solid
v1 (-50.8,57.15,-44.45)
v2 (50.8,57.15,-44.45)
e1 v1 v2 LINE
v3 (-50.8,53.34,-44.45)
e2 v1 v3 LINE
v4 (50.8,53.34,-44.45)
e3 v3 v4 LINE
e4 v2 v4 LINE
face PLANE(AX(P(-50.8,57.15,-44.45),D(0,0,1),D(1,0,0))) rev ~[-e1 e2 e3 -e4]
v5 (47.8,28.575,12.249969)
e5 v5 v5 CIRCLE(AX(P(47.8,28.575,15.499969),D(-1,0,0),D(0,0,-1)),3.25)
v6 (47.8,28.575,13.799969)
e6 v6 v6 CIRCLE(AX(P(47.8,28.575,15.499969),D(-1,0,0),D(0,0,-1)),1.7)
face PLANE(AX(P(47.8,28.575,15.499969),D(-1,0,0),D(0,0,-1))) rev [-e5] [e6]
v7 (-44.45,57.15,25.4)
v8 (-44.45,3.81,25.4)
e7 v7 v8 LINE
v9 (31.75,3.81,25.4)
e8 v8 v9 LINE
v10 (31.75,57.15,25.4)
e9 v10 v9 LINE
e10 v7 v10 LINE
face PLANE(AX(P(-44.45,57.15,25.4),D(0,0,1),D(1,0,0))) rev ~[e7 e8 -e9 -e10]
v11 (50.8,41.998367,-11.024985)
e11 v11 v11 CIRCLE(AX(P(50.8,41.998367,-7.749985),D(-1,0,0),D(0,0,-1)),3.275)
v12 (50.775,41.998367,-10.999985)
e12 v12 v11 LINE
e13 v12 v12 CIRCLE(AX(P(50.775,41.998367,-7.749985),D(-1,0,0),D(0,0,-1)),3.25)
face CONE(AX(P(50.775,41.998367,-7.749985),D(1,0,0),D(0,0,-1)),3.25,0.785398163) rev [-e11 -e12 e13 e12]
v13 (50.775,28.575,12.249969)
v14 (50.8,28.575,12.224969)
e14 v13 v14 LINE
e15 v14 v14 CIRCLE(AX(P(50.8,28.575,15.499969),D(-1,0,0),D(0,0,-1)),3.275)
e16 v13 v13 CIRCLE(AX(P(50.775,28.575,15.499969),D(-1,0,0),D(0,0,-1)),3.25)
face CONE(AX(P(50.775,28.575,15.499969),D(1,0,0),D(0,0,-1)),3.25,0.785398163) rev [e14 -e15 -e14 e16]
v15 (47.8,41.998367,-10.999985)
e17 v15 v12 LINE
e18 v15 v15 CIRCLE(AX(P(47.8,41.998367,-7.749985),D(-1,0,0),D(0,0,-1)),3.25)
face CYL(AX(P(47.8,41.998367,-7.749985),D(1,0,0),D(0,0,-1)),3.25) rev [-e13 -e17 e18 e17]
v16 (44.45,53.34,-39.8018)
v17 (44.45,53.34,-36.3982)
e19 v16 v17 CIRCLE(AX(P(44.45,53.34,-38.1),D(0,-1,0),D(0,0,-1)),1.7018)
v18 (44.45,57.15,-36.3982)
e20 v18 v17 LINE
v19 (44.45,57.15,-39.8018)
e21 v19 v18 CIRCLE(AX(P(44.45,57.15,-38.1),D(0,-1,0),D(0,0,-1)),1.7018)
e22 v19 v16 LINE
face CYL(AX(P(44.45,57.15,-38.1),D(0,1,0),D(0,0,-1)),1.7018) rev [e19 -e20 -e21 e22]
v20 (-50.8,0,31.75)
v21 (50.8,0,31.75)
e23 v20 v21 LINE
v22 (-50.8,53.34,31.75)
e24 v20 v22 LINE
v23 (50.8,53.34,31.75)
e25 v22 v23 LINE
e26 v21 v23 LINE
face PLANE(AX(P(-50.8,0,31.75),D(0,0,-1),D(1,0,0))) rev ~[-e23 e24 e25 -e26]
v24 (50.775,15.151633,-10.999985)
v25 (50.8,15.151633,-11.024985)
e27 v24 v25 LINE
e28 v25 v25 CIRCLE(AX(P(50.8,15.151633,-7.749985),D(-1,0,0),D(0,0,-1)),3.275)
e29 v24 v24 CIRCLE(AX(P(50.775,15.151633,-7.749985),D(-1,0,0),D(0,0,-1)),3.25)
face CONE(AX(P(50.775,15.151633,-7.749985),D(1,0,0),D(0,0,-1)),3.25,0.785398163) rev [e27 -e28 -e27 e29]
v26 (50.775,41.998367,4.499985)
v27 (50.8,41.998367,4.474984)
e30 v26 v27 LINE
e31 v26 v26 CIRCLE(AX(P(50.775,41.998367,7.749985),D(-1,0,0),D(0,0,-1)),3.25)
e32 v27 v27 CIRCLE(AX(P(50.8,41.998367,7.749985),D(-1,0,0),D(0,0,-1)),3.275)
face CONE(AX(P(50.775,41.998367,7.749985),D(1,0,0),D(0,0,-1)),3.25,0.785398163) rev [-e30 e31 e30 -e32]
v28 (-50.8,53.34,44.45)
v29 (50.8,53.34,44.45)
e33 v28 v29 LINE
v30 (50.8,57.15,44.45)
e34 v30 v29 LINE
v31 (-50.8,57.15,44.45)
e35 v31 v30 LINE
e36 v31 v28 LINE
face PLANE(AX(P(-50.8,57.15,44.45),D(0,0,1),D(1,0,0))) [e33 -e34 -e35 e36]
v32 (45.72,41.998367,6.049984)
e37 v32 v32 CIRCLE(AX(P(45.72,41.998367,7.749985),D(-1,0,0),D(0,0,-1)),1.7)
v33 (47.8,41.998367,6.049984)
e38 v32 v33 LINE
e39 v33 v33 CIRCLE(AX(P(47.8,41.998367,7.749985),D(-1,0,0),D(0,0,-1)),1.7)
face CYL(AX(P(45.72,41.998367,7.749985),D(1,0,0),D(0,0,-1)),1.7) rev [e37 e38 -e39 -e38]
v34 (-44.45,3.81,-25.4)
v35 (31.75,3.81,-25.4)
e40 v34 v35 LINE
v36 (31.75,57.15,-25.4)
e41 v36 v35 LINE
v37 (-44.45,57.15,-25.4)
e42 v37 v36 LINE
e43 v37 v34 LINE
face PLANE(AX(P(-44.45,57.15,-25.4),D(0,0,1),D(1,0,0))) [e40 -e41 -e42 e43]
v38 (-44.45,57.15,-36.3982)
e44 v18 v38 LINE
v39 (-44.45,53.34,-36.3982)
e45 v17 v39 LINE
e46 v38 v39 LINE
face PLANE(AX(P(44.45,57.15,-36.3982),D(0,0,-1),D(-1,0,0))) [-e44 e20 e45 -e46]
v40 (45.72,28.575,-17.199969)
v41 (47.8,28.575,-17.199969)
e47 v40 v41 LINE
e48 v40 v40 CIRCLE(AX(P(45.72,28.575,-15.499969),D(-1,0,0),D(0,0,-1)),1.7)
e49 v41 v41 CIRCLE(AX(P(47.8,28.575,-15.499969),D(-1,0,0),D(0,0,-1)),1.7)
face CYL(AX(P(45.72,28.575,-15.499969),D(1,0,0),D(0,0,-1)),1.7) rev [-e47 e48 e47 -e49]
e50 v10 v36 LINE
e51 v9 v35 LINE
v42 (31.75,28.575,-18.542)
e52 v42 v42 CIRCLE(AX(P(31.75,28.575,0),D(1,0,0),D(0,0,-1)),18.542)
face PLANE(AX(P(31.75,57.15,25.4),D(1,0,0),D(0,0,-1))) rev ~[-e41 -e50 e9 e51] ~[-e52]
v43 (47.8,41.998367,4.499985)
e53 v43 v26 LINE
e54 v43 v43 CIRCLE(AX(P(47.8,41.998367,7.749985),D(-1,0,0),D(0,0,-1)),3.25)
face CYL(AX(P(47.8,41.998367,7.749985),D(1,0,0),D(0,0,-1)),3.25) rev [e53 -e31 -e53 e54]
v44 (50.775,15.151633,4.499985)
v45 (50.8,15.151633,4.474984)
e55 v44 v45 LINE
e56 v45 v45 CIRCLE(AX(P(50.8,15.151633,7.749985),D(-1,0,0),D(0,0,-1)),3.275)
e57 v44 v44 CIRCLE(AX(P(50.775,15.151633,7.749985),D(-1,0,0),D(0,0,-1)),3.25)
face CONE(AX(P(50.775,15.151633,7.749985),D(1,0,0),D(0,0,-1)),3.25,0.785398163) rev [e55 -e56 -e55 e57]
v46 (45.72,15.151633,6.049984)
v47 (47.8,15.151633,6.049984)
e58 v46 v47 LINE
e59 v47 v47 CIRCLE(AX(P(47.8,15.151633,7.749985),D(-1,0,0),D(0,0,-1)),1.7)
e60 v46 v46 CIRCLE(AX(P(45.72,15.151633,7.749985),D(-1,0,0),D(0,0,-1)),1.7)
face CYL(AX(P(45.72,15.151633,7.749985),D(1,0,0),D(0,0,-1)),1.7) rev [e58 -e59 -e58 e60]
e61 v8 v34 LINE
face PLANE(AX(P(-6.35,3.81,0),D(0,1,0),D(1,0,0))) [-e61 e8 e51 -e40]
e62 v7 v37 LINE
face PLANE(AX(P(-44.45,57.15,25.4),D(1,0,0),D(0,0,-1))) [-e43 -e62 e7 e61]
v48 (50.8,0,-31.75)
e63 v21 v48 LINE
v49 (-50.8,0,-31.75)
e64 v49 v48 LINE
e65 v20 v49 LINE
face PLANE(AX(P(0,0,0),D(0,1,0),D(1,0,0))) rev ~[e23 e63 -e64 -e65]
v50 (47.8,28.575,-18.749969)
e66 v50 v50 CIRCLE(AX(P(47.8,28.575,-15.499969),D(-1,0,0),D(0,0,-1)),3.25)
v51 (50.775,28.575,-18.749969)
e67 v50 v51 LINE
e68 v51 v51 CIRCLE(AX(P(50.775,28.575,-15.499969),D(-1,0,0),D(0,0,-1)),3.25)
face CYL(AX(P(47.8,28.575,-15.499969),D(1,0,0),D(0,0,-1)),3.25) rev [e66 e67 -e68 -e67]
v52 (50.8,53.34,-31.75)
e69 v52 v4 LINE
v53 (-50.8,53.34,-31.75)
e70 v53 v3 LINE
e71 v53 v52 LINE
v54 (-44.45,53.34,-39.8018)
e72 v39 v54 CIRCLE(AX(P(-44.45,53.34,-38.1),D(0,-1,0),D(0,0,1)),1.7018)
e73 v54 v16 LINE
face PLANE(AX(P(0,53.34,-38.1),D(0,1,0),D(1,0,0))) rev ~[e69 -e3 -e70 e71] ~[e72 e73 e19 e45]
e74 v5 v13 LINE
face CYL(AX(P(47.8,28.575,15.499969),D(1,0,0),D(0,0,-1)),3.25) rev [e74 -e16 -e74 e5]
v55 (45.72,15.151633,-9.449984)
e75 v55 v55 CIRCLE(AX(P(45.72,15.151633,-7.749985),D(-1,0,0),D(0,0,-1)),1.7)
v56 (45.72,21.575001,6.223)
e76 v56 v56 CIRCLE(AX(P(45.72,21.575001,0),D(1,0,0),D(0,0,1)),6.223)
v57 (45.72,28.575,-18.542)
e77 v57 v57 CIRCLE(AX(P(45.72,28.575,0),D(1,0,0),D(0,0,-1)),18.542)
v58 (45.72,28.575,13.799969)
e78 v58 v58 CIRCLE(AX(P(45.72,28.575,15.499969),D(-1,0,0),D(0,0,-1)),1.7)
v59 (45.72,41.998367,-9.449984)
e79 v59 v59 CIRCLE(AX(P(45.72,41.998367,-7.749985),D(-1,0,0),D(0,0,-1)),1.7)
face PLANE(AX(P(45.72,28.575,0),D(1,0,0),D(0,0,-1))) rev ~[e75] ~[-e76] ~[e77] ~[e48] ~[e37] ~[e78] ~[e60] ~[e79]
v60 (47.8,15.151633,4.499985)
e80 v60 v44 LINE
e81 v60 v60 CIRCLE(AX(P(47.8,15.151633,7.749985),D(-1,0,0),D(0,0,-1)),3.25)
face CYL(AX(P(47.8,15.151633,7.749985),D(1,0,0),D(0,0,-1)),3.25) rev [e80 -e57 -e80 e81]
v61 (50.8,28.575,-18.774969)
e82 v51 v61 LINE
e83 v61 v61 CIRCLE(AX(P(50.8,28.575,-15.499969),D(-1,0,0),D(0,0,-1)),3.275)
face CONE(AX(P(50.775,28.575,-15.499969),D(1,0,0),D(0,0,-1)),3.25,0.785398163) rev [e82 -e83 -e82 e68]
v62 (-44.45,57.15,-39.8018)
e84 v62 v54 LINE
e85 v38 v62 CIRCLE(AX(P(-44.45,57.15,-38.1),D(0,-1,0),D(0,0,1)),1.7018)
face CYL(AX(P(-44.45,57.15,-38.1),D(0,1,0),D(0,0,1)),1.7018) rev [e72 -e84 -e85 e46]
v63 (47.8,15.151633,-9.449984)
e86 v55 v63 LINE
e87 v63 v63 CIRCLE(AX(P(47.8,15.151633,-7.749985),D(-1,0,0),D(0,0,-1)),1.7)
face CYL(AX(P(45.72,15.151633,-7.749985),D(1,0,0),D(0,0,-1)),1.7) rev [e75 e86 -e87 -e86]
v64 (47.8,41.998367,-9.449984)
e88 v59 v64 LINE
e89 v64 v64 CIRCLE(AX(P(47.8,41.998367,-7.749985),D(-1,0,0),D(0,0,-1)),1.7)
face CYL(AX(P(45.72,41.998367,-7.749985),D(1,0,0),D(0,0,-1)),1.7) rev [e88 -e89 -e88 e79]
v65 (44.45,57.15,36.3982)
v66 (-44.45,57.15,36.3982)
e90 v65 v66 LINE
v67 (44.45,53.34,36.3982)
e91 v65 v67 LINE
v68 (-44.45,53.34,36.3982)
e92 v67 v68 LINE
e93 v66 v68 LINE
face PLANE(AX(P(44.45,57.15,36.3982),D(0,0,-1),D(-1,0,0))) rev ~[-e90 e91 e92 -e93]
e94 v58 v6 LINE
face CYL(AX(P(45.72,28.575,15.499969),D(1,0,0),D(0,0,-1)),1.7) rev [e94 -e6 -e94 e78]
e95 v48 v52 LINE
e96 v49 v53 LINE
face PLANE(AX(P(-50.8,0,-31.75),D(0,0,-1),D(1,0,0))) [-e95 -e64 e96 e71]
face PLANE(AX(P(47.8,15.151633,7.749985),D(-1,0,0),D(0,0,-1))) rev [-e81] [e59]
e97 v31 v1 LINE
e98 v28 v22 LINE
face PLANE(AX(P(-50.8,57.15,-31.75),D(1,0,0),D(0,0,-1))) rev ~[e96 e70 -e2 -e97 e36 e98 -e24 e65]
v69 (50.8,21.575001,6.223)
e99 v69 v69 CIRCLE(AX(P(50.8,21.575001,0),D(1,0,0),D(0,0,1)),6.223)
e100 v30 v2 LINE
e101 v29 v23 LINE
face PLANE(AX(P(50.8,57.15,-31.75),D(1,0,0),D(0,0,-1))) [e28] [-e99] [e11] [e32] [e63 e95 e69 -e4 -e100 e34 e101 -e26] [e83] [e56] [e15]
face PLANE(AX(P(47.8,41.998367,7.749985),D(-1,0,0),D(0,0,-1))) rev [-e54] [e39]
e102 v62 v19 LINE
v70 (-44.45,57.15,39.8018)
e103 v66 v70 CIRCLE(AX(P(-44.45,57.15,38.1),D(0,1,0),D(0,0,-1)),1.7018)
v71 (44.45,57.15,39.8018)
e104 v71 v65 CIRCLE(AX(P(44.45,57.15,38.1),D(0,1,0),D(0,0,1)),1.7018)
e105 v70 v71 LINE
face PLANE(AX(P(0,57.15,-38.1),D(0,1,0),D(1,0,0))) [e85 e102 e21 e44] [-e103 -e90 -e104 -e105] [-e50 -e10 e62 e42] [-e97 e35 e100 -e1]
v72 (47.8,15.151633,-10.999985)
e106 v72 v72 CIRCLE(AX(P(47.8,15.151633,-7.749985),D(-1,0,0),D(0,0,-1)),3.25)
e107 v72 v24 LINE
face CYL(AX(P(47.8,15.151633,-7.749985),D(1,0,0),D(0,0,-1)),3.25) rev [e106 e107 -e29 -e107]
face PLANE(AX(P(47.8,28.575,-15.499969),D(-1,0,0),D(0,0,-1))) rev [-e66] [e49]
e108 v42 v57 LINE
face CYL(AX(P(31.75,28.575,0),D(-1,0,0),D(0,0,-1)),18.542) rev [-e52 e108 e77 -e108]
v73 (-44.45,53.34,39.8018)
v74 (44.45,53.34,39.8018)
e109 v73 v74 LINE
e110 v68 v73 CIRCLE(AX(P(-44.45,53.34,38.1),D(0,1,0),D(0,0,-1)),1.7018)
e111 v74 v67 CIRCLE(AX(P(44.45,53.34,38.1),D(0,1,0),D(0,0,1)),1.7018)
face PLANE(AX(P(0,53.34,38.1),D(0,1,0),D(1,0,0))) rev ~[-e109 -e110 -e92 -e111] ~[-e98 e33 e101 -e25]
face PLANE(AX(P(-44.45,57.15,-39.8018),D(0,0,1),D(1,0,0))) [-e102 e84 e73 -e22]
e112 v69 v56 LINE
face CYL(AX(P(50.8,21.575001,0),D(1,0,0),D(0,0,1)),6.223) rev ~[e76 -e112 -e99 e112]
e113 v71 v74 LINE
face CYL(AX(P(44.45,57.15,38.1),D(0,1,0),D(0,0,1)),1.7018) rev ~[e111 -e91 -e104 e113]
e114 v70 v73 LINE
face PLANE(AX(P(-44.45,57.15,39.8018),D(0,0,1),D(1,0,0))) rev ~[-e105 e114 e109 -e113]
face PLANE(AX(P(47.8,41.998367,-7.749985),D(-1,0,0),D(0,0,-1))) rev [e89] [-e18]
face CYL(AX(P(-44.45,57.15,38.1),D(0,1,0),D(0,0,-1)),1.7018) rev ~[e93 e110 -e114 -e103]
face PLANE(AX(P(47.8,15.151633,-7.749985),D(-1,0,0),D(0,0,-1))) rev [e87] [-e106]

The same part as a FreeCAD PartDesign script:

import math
import FreeCAD as App
import Part
import Sketcher
from FreeCAD import Vector
Q = App.Units.Quantity

doc = App.newDocument("Part")
body = doc.addObject("PartDesign::Body", "Body")

sketch1 = body.newObject("Sketcher::SketchObject", "Sketch")
sketch1.AttachmentSupport = (doc.getObject("XZ_Plane"), [""])
sketch1.MapMode = "FlatFace"
sketch1.addGeometry([
    Part.LineSegment(Vector(-51, -32, 0), Vector(-51, 32, 0)),
    Part.LineSegment(Vector(-51, 32, 0), Vector(51, 32, 0)),
    Part.LineSegment(Vector(51, 32, 0), Vector(51, -32, 0)),
    Part.LineSegment(Vector(51, -32, 0), Vector(-51, -32, 0)),
], False)
sketch1.addConstraint([
    Sketcher.Constraint("Coincident", 0, 2, 1, 1),
    Sketcher.Constraint("Coincident", 1, 2, 2, 1),
    Sketcher.Constraint("Coincident", 2, 2, 3, 1),
    Sketcher.Constraint("Coincident", 3, 2, 0, 1),
    Sketcher.Constraint("Vertical", 0),
    Sketcher.Constraint("Horizontal", 1),
    Sketcher.Constraint("Vertical", 2),
    Sketcher.Constraint("Horizontal", 3),
    Sketcher.Constraint("Symmetric", 0, 2, 2, 2, -1, 1),
    Sketcher.Constraint("DistanceX", 1, 1, 1, 2, Q("4 in")),
    Sketcher.Constraint("DistanceY", 0, 1, 0, 2, Q("2.5 in")),
])
pad1 = body.newObject("PartDesign::Pad", "Pad")
pad1.Profile = sketch1
pad1.Length = Q("2.25 in")
pad1.Reversed = True

sketch2 = body.newObject("Sketcher::SketchObject", "Sketch001")
sketch2.AttachmentSupport = (doc.getObject("XZ_Plane"), [""])
sketch2.MapMode = "FlatFace"
sketch2.AttachmentOffset = App.Placement(Vector(0, 0, -41.998367), App.Rotation())
sketch2.addGeometry([
    Part.LineSegment(Vector(44.699, 7.75, 0), Vector(50.8, 7.75, 0)),
    Part.LineSegment(Vector(50.8, 7.75, 0), Vector(50.8, 4.475, 0)),
    Part.LineSegment(Vector(50.8, 4.475, 0), Vector(50.775, 4.5, 0)),
    Part.LineSegment(Vector(50.775, 4.5, 0), Vector(47.8, 4.5, 0)),
    Part.LineSegment(Vector(47.8, 4.5, 0), Vector(47.8, 6.05, 0)),
    Part.LineSegment(Vector(47.8, 6.05, 0), Vector(45.72, 6.05, 0)),
    Part.LineSegment(Vector(45.72, 6.05, 0), Vector(44.699, 7.75, 0)),
], False)
sketch2.addGeometry(Part.LineSegment(Vector(50.8, 7.75, 0), Vector(44.699, 7.75, 0)), True)
sketch2.addConstraint([
    Sketcher.Constraint("Coincident", 0, 2, 1, 1),
    Sketcher.Constraint("Coincident", 1, 2, 2, 1),
    Sketcher.Constraint("Coincident", 2, 2, 3, 1),
    Sketcher.Constraint("Coincident", 3, 2, 4, 1),
    Sketcher.Constraint("Coincident", 4, 2, 5, 1),
    Sketcher.Constraint("Coincident", 5, 2, 6, 1),
    Sketcher.Constraint("Coincident", 6, 2, 0, 1),
    Sketcher.Constraint("Horizontal", 0),
    Sketcher.Constraint("Vertical", 1),
    Sketcher.Constraint("Horizontal", 3),
    Sketcher.Constraint("Vertical", 4),
    Sketcher.Constraint("Horizontal", 5),
    Sketcher.Constraint("Horizontal", 7),
    Sketcher.Constraint("Coincident", 7, 1, 0, 2),
    Sketcher.Constraint("Equal", 0, 7),
    Sketcher.Constraint("DistanceX", -1, 1, 0, 2, Q("2 in")),
    Sketcher.Constraint("Angle", 2, Q("135 deg")),
    Sketcher.Constraint("Angle", 6, Q("121 deg")),
    Sketcher.Constraint("DistanceX", -1, 1, 5, 2, Q("1.8 in")),
    Sketcher.Constraint("DistanceX", 3, 2, 3, 1, 2.975),
    Sketcher.Constraint("DistanceX", 5, 2, 5, 1, 2.08),
    Sketcher.Constraint("DistanceY", 1, 2, 1, 1, 3.275),
    Sketcher.Constraint("DistanceY", 4, 1, 4, 2, 1.55),
    Sketcher.Constraint("DistanceY", -1, 1, 0, 2, 7.749985),
])
groove = body.newObject("PartDesign::Groove", "Groove")
groove.Profile = sketch2
groove.ReferenceAxis = (sketch2, ["Axis0"])
groove.Angle = 360
doc.recompute()

datumline = body.newObject("PartDesign::Line", "DatumLine")
datumline.Placement = App.Placement(Vector(0, 0, 0), App.Rotation(Vector(0, 0, 1), Vector(0, -0.866025404, 0.5)))
linearpattern = body.newObject("PartDesign::LinearPattern", "LinearPattern")
linearpattern.Originals = [groove]
linearpattern.Direction = (datumline, [""])
linearpattern.Mode = "offset"
linearpattern.Offset = 15.499969
linearpattern.Occurrences = 2
body.Tip = linearpattern
doc.recompute()

linearpattern2 = body.newObject("PartDesign::LinearPattern", "LinearPattern001")
linearpattern2.Originals = [groove]
linearpattern2.Direction = (doc.getObject("Y_Axis"), [""])
linearpattern2.Mode = "offset"
linearpattern2.Offset = 26.846734
linearpattern2.Occurrences = 2
linearpattern2.Reversed = True
body.Tip = linearpattern2
doc.recompute()

datumline2 = body.newObject("PartDesign::Line", "DatumLine001")
datumline2.Placement = App.Placement(Vector(0, 0, 0), App.Rotation(Vector(0, 0, 1), Vector(0, -0.866025404, -0.5)))
linearpattern3 = body.newObject("PartDesign::LinearPattern", "LinearPattern002")
linearpattern3.Originals = [groove]
linearpattern3.Direction = (datumline2, [""])
linearpattern3.Mode = "offset"
linearpattern3.Offset = 30.999938
linearpattern3.Occurrences = 2
body.Tip = linearpattern3
doc.recompute()

datumline3 = body.newObject("PartDesign::Line", "DatumLine002")
datumline3.Placement = App.Placement(Vector(0, 0, 0), App.Rotation(Vector(0, 0, 1), Vector(0, -0.5, -0.866025404)))
linearpattern4 = body.newObject("PartDesign::LinearPattern", "LinearPattern003")
linearpattern4.Originals = [groove]
linearpattern4.Direction = (datumline3, [""])
linearpattern4.Mode = "offset"
linearpattern4.Offset = 26.846734
linearpattern4.Occurrences = 2
body.Tip = linearpattern4
doc.recompute()

linearpattern5 = body.newObject("PartDesign::LinearPattern", "LinearPattern004")
linearpattern5.Originals = [groove]
linearpattern5.Direction = (doc.getObject("Z_Axis"), [""])
linearpattern5.Mode = "offset"
linearpattern5.Offset = 15.499969
linearpattern5.Occurrences = 2
linearpattern5.Reversed = True
body.Tip = linearpattern5

sketch3 = body.newObject("Sketcher::SketchObject", "Sketch002")
sketch3.AttachmentSupport = (doc.getObject("YZ_Plane"), [""])
sketch3.MapMode = "FlatFace"
sketch3.AttachmentOffset = App.Placement(Vector(0, 0, 2 * 25.4), App.Rotation())
sketch3.addGeometry(Part.Circle(Vector(22, 0, 0), Vector(0, 0, 1), 6), False)
sketch3.addConstraint([
    Sketcher.Constraint("PointOnObject", 0, 3, -1),
    Sketcher.Constraint("Diameter", 0, Q("0.49 in")),
    Sketcher.Constraint("DistanceX", -1, 1, 0, 3, 21.575001),
])
pocket1 = body.newObject("PartDesign::Pocket", "Pocket")
pocket1.Profile = sketch3
pocket1.Length = Q("2 in")

sketch4 = body.newObject("Sketcher::SketchObject", "Sketch003")
sketch4.AttachmentSupport = (doc.getObject("XZ_Plane"), [""])
sketch4.MapMode = "FlatFace"
sketch4.AttachmentOffset = App.Placement(Vector(0, 0, -2.25 * 25.4), App.Rotation())
sketch4.addGeometry([
    Part.LineSegment(Vector(-44, -25, 0), Vector(-44, 25, 0)),
    Part.LineSegment(Vector(-44, 25, 0), Vector(32, 25, 0)),
    Part.LineSegment(Vector(32, 25, 0), Vector(32, -25, 0)),
    Part.LineSegment(Vector(32, -25, 0), Vector(-44, -25, 0)),
], False)
sketch4.addConstraint([
    Sketcher.Constraint("Coincident", 0, 2, 1, 1),
    Sketcher.Constraint("Coincident", 1, 2, 2, 1),
    Sketcher.Constraint("Coincident", 2, 2, 3, 1),
    Sketcher.Constraint("Coincident", 3, 2, 0, 1),
    Sketcher.Constraint("Vertical", 0),
    Sketcher.Constraint("Horizontal", 1),
    Sketcher.Constraint("Vertical", 2),
    Sketcher.Constraint("Horizontal", 3),
    Sketcher.Constraint("DistanceX", 1, 1, 1, 2, Q("3 in")),
    Sketcher.Constraint("DistanceY", 0, 1, 0, 2, Q("2 in")),
    Sketcher.Constraint("DistanceY", -1, 1, 0, 2, Q("1 in")),
    Sketcher.Constraint("DistanceX", 0, 2, -1, 1, Q("1.75 in")),
])
pocket2 = body.newObject("PartDesign::Pocket", "Pocket001")
pocket2.Profile = sketch4
pocket2.Length = Q("2.1 in")
pocket2.Reversed = True

sketch5 = body.newObject("Sketcher::SketchObject", "Sketch004")
sketch5.AttachmentSupport = (doc.getObject("YZ_Plane"), [""])
sketch5.MapMode = "FlatFace"
sketch5.AttachmentOffset = App.Placement(Vector(0, 0, 1.25 * 25.4), App.Rotation())
sketch5.addGeometry(Part.Circle(Vector(29, 0, 0), Vector(0, 0, 1), 19), False)
sketch5.addConstraint([
    Sketcher.Constraint("PointOnObject", 0, 3, -1),
    Sketcher.Constraint("Diameter", 0, Q("1.46 in")),
    Sketcher.Constraint("DistanceX", -1, 1, 0, 3, Q("1.125 in")),
])
pocket3 = body.newObject("PartDesign::Pocket", "Pocket002")
pocket3.Profile = sketch5
pocket3.Length = Q("0.55 in")
pocket3.Reversed = True

sketch6 = body.newObject("Sketcher::SketchObject", "Sketch005")
sketch6.AttachmentSupport = (doc.getObject("XZ_Plane"), [""])
sketch6.MapMode = "FlatFace"
sketch6.AttachmentOffset = App.Placement(Vector(0, 0, -2.25 * 25.4), App.Rotation())
sketch6.addGeometry([
    Part.LineSegment(Vector(-51, -44, 0), Vector(-51, -32, 0)),
    Part.LineSegment(Vector(-51, -32, 0), Vector(51, -32, 0)),
    Part.LineSegment(Vector(51, -32, 0), Vector(51, -44, 0)),
    Part.LineSegment(Vector(51, -44, 0), Vector(-51, -44, 0)),
    Part.LineSegment(Vector(-51, 32, 0), Vector(-51, 44, 0)),
    Part.LineSegment(Vector(-51, 44, 0), Vector(51, 44, 0)),
    Part.LineSegment(Vector(51, 44, 0), Vector(51, 32, 0)),
    Part.LineSegment(Vector(51, 32, 0), Vector(-51, 32, 0)),
], False)
sketch6.addConstraint([
    Sketcher.Constraint("Coincident", 0, 2, 1, 1),
    Sketcher.Constraint("Coincident", 1, 2, 2, 1),
    Sketcher.Constraint("Coincident", 2, 2, 3, 1),
    Sketcher.Constraint("Coincident", 3, 2, 0, 1),
    Sketcher.Constraint("Coincident", 4, 2, 5, 1),
    Sketcher.Constraint("Coincident", 5, 2, 6, 1),
    Sketcher.Constraint("Coincident", 6, 2, 7, 1),
    Sketcher.Constraint("Coincident", 7, 2, 4, 1),
    Sketcher.Constraint("Vertical", 0),
    Sketcher.Constraint("Horizontal", 1),
    Sketcher.Constraint("Vertical", 2),
    Sketcher.Constraint("Horizontal", 3),
    Sketcher.Constraint("Vertical", 4),
    Sketcher.Constraint("Horizontal", 5),
    Sketcher.Constraint("Vertical", 6),
    Sketcher.Constraint("Horizontal", 7),
    Sketcher.Constraint("Symmetric", 2, 2, 4, 2, -1, 1),
    Sketcher.Constraint("Symmetric", 0, 2, 6, 2, -1, 1),
    Sketcher.Constraint("Vertical", 3, 2, 4, 2),
    Sketcher.Constraint("DistanceX", 1, 1, 1, 2, Q("4 in")),
    Sketcher.Constraint("DistanceY", 0, 1, 0, 2, Q("0.5 in")),
    Sketcher.Constraint("DistanceY", 0, 2, 4, 2, Q("3 in")),
])
pad2 = body.newObject("PartDesign::Pad", "Pad001")
pad2.Profile = sketch6
pad2.Length = Q("0.15 in")

sketch7 = body.newObject("Sketcher::SketchObject", "Sketch006")
sketch7.AttachmentSupport = (doc.getObject("XZ_Plane"), [""])
sketch7.MapMode = "FlatFace"
sketch7.AttachmentOffset = App.Placement(Vector(0, 0, -2.25 * 25.4), App.Rotation())
sketch7.addGeometry([
    Part.LineSegment(Vector(44.5, -39.8, 0), Vector(-44.5, -39.8, 0)),
    Part.ArcOfCircle(Part.Circle(Vector(-44.5, -38.1, 0), Vector(0, 0, 1), 1.7), math.radians(90), math.radians(270)),
    Part.LineSegment(Vector(-44.5, -36.4, 0), Vector(44.5, -36.4, 0)),
    Part.ArcOfCircle(Part.Circle(Vector(44.5, -38.1, 0), Vector(0, 0, 1), 1.7), math.radians(-90), math.radians(90)),
    Part.LineSegment(Vector(-44.5, 39.8, 0), Vector(44.5, 39.8, 0)),
    Part.ArcOfCircle(Part.Circle(Vector(44.5, 38.1, 0), Vector(0, 0, 1), 1.7), math.radians(-90), math.radians(90)),
    Part.LineSegment(Vector(44.5, 36.4, 0), Vector(-44.5, 36.4, 0)),
    Part.ArcOfCircle(Part.Circle(Vector(-44.5, 38.1, 0), Vector(0, 0, 1), 1.7), math.radians(90), math.radians(270)),
], False)
sketch7.addConstraint([
    Sketcher.Constraint("Tangent", 0, 2, 1, 2),
    Sketcher.Constraint("Tangent", 1, 1, 2, 1),
    Sketcher.Constraint("Tangent", 2, 2, 3, 2),
    Sketcher.Constraint("Tangent", 3, 1, 0, 1),
    Sketcher.Constraint("Tangent", 4, 2, 5, 2),
    Sketcher.Constraint("Tangent", 5, 1, 6, 1),
    Sketcher.Constraint("Tangent", 6, 2, 7, 2),
    Sketcher.Constraint("Tangent", 7, 1, 4, 1),
    Sketcher.Constraint("Horizontal", 0),
    Sketcher.Constraint("Horizontal", 2),
    Sketcher.Constraint("Horizontal", 4),
    Sketcher.Constraint("Horizontal", 6),
    Sketcher.Constraint("Equal", 3, 5),
    Sketcher.Constraint("Symmetric", 1, 3, 5, 3, -1, 1),
    Sketcher.Constraint("Vertical", 3, 3, 5, 3),
    Sketcher.Constraint("Vertical", 1, 3, 7, 3),
    Sketcher.Constraint("DistanceX", 0, 2, 0, 1, Q("3.5 in")),
    Sketcher.Constraint("Radius", 1, Q("0.067 in")),
    Sketcher.Constraint("DistanceY", 3, 3, 5, 3, Q("3 in")),
])
pocket4 = body.newObject("PartDesign::Pocket", "Pocket003")
pocket4.Profile = sketch7
pocket4.Length = Q("0.15 in")
pocket4.Reversed = True

doc.recompute()
